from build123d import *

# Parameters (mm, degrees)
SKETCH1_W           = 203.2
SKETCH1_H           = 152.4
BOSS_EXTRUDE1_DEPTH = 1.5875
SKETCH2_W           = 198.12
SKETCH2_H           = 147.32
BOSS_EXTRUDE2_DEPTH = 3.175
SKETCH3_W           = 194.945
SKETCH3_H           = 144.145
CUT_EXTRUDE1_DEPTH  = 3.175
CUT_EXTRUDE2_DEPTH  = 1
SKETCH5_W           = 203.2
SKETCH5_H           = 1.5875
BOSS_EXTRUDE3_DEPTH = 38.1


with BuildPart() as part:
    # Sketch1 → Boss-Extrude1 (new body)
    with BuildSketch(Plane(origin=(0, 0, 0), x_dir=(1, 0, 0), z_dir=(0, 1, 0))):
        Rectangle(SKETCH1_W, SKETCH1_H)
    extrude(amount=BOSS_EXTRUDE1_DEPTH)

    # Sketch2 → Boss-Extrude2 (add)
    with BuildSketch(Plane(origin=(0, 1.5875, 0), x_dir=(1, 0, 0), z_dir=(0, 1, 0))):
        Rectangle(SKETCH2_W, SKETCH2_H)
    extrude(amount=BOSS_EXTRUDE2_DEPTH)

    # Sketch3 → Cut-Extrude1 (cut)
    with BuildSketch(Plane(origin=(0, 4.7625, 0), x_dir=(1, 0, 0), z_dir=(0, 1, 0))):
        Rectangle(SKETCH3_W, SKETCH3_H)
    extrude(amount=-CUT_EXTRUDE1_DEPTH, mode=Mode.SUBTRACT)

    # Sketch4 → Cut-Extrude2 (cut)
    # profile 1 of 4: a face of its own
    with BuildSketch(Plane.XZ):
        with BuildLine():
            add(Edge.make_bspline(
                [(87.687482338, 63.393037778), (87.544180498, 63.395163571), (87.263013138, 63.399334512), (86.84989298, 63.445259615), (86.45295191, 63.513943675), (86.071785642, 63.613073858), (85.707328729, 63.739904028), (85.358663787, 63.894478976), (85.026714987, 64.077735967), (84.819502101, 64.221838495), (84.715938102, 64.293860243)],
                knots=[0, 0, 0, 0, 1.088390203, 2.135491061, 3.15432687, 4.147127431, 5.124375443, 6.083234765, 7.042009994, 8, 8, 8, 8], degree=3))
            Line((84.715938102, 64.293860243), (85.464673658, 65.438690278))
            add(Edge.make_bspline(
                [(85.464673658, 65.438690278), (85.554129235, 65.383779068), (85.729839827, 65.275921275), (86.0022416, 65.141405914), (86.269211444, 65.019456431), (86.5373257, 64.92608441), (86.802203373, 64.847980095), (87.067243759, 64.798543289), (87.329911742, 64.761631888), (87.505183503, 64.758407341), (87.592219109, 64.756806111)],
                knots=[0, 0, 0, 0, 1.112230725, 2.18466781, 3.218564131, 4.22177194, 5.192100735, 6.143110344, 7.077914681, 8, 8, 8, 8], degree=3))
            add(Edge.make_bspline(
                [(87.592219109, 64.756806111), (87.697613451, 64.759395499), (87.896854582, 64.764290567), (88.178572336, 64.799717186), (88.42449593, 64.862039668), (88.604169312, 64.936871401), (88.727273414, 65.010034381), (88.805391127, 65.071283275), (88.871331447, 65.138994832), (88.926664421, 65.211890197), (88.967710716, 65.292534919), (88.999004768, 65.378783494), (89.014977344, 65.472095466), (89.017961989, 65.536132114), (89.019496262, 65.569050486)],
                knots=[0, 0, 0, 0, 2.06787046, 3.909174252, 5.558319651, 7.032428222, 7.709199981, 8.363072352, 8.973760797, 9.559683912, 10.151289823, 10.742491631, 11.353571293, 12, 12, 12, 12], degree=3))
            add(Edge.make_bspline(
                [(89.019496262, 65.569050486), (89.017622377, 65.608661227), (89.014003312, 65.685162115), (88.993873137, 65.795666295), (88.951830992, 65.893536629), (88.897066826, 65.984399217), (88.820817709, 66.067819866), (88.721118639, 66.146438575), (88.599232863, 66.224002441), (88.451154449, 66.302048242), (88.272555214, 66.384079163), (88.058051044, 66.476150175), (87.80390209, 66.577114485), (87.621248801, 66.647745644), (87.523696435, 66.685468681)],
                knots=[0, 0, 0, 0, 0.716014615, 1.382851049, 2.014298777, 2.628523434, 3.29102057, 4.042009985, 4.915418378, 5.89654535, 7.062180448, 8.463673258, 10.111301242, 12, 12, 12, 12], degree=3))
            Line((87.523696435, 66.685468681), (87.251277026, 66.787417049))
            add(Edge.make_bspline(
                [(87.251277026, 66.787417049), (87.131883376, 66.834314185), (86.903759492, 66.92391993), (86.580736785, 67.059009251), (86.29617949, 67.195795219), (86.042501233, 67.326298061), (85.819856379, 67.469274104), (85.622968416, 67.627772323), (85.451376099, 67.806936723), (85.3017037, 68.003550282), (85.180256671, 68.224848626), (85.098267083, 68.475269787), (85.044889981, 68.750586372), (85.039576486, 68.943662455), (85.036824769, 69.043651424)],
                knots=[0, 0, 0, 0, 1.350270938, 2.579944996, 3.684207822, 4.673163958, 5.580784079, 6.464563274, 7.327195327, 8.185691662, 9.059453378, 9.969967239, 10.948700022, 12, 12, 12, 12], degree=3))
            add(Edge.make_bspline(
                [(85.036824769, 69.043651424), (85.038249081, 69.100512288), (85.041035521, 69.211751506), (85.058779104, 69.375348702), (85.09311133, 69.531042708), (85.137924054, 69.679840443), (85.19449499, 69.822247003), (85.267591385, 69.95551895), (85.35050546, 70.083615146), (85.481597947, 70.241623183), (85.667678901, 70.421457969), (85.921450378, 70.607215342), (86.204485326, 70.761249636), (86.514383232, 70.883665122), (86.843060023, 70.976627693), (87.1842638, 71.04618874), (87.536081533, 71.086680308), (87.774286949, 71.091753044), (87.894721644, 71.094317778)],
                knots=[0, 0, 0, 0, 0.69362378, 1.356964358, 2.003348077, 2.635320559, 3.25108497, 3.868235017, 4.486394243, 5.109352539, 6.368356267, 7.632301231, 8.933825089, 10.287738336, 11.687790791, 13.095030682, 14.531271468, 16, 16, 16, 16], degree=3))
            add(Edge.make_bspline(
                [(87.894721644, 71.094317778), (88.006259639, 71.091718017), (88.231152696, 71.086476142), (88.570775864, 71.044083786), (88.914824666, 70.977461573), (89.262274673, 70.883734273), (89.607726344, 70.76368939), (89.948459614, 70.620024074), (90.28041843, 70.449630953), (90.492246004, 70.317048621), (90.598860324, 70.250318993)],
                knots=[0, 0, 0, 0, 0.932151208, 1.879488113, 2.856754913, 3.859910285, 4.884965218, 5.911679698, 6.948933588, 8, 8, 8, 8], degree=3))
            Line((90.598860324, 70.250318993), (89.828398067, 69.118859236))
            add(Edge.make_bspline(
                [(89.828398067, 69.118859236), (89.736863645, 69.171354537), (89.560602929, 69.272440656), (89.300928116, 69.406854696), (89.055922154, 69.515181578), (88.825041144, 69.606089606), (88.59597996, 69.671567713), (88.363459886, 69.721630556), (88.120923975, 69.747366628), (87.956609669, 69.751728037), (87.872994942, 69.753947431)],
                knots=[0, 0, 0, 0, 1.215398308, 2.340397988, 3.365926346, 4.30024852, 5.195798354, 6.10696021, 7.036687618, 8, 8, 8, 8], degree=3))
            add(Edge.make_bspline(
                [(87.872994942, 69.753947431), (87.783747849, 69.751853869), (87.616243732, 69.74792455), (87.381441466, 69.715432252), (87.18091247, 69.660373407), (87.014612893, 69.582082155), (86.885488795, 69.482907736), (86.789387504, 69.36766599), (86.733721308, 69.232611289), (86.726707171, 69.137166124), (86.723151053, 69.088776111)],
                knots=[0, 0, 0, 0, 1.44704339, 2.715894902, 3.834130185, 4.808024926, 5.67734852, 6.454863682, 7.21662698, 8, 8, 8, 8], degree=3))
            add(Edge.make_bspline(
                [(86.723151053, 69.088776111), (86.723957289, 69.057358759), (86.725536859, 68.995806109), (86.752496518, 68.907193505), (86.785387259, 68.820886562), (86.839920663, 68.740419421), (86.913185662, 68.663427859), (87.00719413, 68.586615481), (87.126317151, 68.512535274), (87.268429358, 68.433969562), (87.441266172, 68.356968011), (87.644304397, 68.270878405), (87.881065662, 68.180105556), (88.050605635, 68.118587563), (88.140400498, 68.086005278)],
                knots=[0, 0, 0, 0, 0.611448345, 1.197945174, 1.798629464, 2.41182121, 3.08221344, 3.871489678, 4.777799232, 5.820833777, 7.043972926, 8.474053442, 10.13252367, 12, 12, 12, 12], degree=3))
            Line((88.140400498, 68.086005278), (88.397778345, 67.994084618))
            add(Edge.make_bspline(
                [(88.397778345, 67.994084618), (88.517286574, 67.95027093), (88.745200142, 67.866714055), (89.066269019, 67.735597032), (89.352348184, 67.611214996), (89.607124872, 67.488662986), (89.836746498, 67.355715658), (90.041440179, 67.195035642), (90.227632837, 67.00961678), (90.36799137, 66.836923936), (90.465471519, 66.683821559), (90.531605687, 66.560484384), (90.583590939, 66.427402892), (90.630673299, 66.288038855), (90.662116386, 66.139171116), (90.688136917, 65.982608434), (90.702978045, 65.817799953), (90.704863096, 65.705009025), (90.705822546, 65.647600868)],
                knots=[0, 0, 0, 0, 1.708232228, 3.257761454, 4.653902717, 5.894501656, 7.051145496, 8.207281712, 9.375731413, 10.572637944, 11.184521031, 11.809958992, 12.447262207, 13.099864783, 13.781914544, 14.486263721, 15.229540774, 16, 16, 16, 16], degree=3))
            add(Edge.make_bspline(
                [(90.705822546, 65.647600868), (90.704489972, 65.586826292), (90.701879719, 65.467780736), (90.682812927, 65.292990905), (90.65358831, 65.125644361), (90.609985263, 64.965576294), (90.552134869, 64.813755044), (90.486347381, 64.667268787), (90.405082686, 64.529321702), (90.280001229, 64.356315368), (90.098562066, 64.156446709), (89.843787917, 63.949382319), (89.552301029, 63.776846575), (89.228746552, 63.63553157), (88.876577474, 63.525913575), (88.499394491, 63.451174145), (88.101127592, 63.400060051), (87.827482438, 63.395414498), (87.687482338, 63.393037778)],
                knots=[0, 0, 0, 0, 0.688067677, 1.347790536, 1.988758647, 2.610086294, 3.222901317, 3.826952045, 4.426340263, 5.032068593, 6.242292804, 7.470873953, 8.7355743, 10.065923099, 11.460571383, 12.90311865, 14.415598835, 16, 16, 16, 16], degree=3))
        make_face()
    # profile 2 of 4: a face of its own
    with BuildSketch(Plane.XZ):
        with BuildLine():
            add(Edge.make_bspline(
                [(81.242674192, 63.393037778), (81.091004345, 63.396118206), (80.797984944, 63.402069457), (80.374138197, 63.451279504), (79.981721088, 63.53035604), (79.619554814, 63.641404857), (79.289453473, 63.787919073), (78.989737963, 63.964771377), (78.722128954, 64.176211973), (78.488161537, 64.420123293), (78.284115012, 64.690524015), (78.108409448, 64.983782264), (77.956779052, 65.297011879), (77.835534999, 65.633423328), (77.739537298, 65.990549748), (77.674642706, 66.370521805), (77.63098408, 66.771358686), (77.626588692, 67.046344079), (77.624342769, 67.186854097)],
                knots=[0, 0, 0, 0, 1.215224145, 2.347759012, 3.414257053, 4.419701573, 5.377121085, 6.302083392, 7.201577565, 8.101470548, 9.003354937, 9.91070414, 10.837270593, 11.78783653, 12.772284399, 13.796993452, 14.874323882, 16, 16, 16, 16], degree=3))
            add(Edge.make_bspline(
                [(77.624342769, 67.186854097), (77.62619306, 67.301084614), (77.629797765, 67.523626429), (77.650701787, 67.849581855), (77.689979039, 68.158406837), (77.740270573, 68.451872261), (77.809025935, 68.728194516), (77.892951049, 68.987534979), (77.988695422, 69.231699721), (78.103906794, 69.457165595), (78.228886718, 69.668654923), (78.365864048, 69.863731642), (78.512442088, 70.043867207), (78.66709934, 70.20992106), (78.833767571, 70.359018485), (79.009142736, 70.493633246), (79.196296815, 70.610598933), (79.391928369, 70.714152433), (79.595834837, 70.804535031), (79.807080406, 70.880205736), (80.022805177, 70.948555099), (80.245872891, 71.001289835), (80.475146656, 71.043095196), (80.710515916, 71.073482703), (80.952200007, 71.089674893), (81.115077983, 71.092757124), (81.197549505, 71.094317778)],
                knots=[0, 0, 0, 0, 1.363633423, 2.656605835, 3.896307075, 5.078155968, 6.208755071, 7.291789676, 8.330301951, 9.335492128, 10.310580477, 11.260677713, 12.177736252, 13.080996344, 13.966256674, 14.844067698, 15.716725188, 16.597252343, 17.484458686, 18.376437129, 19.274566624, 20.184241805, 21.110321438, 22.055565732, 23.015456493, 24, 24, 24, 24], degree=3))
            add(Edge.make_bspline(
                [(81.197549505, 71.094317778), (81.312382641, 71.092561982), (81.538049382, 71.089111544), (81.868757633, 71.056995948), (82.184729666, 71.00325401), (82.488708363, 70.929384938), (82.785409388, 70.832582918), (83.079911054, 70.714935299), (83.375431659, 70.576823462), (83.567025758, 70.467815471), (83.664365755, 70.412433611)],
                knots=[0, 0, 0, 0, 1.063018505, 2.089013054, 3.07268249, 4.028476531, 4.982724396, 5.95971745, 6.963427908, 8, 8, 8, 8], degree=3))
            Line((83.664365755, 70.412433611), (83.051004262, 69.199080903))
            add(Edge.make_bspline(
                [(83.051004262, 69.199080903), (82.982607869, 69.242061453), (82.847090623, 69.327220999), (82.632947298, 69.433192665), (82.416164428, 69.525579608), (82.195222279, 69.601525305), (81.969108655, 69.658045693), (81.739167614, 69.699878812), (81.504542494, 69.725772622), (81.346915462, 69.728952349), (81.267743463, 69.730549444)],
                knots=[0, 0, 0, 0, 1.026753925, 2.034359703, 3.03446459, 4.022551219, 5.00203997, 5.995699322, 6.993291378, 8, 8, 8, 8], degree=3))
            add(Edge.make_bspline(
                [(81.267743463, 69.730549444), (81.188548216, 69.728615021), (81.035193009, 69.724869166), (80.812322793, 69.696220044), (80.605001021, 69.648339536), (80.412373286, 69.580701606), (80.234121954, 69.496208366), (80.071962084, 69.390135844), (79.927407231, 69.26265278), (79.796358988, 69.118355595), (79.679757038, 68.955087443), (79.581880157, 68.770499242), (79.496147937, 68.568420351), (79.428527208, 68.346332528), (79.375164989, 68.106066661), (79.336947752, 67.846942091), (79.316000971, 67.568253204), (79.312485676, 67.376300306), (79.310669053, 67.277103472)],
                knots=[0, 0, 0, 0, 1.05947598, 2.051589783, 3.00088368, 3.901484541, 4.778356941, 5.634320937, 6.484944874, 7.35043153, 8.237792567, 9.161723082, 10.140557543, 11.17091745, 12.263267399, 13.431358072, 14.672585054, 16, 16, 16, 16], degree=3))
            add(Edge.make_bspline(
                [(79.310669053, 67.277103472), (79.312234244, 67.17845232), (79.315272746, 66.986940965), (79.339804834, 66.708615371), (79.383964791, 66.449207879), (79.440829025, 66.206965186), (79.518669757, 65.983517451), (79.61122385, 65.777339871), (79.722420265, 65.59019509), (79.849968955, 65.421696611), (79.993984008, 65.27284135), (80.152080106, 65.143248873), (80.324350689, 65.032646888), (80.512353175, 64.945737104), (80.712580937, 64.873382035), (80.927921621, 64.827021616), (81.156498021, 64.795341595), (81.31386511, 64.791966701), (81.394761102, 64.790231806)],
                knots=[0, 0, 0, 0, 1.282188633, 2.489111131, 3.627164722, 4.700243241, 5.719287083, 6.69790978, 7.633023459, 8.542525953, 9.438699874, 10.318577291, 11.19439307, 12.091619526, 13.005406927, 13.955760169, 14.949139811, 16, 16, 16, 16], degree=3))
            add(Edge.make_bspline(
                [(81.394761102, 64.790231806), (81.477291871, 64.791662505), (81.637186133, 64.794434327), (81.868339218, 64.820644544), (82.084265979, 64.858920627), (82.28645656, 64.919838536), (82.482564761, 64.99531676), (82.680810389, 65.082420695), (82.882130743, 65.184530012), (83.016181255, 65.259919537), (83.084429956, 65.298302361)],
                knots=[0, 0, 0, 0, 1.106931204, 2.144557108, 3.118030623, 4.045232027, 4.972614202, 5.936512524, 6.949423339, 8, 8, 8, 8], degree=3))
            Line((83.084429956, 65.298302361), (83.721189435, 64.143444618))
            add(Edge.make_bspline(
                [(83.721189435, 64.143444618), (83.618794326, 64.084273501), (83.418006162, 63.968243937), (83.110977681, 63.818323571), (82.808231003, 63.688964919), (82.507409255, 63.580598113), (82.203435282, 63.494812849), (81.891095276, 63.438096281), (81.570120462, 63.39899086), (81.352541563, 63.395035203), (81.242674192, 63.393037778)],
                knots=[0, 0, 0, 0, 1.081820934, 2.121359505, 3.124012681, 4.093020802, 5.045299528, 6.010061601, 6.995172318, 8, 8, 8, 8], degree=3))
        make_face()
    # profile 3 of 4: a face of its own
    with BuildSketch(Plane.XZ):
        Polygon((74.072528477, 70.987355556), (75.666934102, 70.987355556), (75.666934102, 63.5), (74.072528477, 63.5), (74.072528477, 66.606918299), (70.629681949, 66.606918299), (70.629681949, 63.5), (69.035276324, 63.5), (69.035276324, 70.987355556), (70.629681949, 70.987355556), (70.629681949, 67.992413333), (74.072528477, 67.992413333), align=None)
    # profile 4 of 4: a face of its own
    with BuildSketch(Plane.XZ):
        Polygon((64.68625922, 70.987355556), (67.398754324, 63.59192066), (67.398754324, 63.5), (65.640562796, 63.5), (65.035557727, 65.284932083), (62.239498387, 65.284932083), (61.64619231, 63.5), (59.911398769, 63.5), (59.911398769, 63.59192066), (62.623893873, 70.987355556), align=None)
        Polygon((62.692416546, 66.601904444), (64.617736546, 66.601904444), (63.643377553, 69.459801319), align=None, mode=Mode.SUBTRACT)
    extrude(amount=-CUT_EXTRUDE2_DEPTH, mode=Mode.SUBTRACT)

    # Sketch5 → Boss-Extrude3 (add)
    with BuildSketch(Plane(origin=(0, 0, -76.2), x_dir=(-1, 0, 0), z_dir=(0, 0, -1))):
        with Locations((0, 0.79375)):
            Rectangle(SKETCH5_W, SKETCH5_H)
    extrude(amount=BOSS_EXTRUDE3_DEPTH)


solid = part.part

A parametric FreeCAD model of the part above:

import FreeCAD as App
import Part
import Sketcher
Q = App.Units.Quantity

doc = App.newDocument("Part")
params = doc.addObject("Spreadsheet::Sheet", "Params")
for row, (alias, value) in enumerate([
    ("sketch1_width", "8 in"),
    ("sketch1_height", "6 in"),
    ("pad1_length", "0.0625 in"),
    ("sketch2_width", "7.8 in"),
    ("sketch2_height", "5.8 in"),
    ("pad2_length", "0.125 in"),
    ("sketch3_width", "7.675 in"),
    ("sketch3_height", "5.675 in"),
    ("pocket1_length", "0.125 in"),
    ("pocket2_length", "1 mm"),
    ("sketch5_width", "8 in"),
    ("sketch5_height", "0.0625 in"),
    ("pad3_length", "1.5 in"),
], start=1):
    params.set(f"A{row}", alias)
    params.set(f"B{row}", "=" + value)
    params.setAlias(f"B{row}", alias)

body = doc.addObject("PartDesign::Body", "Body")

# Sketch on XZ plane
sketch1 = body.newObject("Sketcher::SketchObject", "Sketch")
sketch1.AttachmentSupport = (doc.getObject("XZ_Plane"), [""])
sketch1.MapMode = "FlatFace"
sketch1.addGeometry(Part.LineSegment(App.Vector(-102, -76, 0), App.Vector(-102, 76, 0)), False)
sketch1.addGeometry(Part.LineSegment(App.Vector(-102, 76, 0), App.Vector(102, 76, 0)), False)
sketch1.addGeometry(Part.LineSegment(App.Vector(102, 76, 0), App.Vector(102, -76, 0)), False)
sketch1.addGeometry(Part.LineSegment(App.Vector(102, -76, 0), App.Vector(-102, -76, 0)), False)
sketch1.addConstraint(Sketcher.Constraint("Coincident", 0, 2, 1, 1))
sketch1.addConstraint(Sketcher.Constraint("Coincident", 1, 2, 2, 1))
sketch1.addConstraint(Sketcher.Constraint("Coincident", 2, 2, 3, 1))
sketch1.addConstraint(Sketcher.Constraint("Coincident", 3, 2, 0, 1))
sketch1.addConstraint(Sketcher.Constraint("Vertical", 0))
sketch1.addConstraint(Sketcher.Constraint("Horizontal", 1))
sketch1.addConstraint(Sketcher.Constraint("Vertical", 2))
sketch1.addConstraint(Sketcher.Constraint("Horizontal", 3))
sketch1.addConstraint(Sketcher.Constraint("Symmetric", 0, 2, 2, 2, -1, 1))
sketch1.addConstraint(Sketcher.Constraint("DistanceX", 1, 1, 1, 2, Q("8 in")))
sketch1.addConstraint(Sketcher.Constraint("DistanceY", 0, 1, 0, 2, Q("6 in")))
sketch1.setExpression("Constraints[9]", "Params.sketch1_width")
sketch1.setExpression("Constraints[10]", "Params.sketch1_height")
pad1 = body.newObject("PartDesign::Pad", "Pad")
pad1.Profile = sketch1
pad1.setExpression("Length", "Params.pad1_length")
pad1.Reversed = True

# Sketch on XZ plane
sketch2 = body.newObject("Sketcher::SketchObject", "Sketch001")
sketch2.AttachmentSupport = (doc.getObject("XZ_Plane"), [""])
sketch2.MapMode = "FlatFace"
sketch2.AttachmentOffset = App.Placement(App.Vector(0, 0, -0.0625 * 25.4), App.Rotation())
sketch2.addGeometry(Part.LineSegment(App.Vector(-99, -74, 0), App.Vector(-99, 74, 0)), False)
sketch2.addGeometry(Part.LineSegment(App.Vector(-99, 74, 0), App.Vector(99, 74, 0)), False)
sketch2.addGeometry(Part.LineSegment(App.Vector(99, 74, 0), App.Vector(99, -74, 0)), False)
sketch2.addGeometry(Part.LineSegment(App.Vector(99, -74, 0), App.Vector(-99, -74, 0)), False)
sketch2.addConstraint(Sketcher.Constraint("Coincident", 0, 2, 1, 1))
sketch2.addConstraint(Sketcher.Constraint("Coincident", 1, 2, 2, 1))
sketch2.addConstraint(Sketcher.Constraint("Coincident", 2, 2, 3, 1))
sketch2.addConstraint(Sketcher.Constraint("Coincident", 3, 2, 0, 1))
sketch2.addConstraint(Sketcher.Constraint("Vertical", 0))
sketch2.addConstraint(Sketcher.Constraint("Horizontal", 1))
sketch2.addConstraint(Sketcher.Constraint("Vertical", 2))
sketch2.addConstraint(Sketcher.Constraint("Horizontal", 3))
sketch2.addConstraint(Sketcher.Constraint("Symmetric", 0, 2, 2, 2, -1, 1))
sketch2.addConstraint(Sketcher.Constraint("DistanceX", 1, 1, 1, 2, Q("7.8 in")))
sketch2.addConstraint(Sketcher.Constraint("DistanceY", 0, 1, 0, 2, Q("5.8 in")))
sketch2.setExpression("Constraints[9]", "Params.sketch2_width")
sketch2.setExpression("Constraints[10]", "Params.sketch2_height")
pad2 = body.newObject("PartDesign::Pad", "Pad001")
pad2.Profile = sketch2
pad2.setExpression("Length", "Params.pad2_length")
pad2.Reversed = True

# Sketch on XZ plane
sketch3 = body.newObject("Sketcher::SketchObject", "Sketch002")
sketch3.AttachmentSupport = (doc.getObject("XZ_Plane"), [""])
sketch3.MapMode = "FlatFace"
sketch3.AttachmentOffset = App.Placement(App.Vector(0, 0, -0.1875 * 25.4), App.Rotation())
sketch3.addGeometry(Part.LineSegment(App.Vector(-97, -72, 0), App.Vector(-97, 72, 0)), False)
sketch3.addGeometry(Part.LineSegment(App.Vector(-97, 72, 0), App.Vector(97, 72, 0)), False)
sketch3.addGeometry(Part.LineSegment(App.Vector(97, 72, 0), App.Vector(97, -72, 0)), False)
sketch3.addGeometry(Part.LineSegment(App.Vector(97, -72, 0), App.Vector(-97, -72, 0)), False)
sketch3.addConstraint(Sketcher.Constraint("Coincident", 0, 2, 1, 1))
sketch3.addConstraint(Sketcher.Constraint("Coincident", 1, 2, 2, 1))
sketch3.addConstraint(Sketcher.Constraint("Coincident", 2, 2, 3, 1))
sketch3.addConstraint(Sketcher.Constraint("Coincident", 3, 2, 0, 1))
sketch3.addConstraint(Sketcher.Constraint("Vertical", 0))
sketch3.addConstraint(Sketcher.Constraint("Horizontal", 1))
sketch3.addConstraint(Sketcher.Constraint("Vertical", 2))
sketch3.addConstraint(Sketcher.Constraint("Horizontal", 3))
sketch3.addConstraint(Sketcher.Constraint("Symmetric", 0, 2, 2, 2, -1, 1))
sketch3.addConstraint(Sketcher.Constraint("DistanceX", 1, 1, 1, 2, Q("7.675 in")))
sketch3.addConstraint(Sketcher.Constraint("DistanceY", 0, 1, 0, 2, Q("5.675 in")))
sketch3.setExpression("Constraints[9]", "Params.sketch3_width")
sketch3.setExpression("Constraints[10]", "Params.sketch3_height")
pocket1 = body.newObject("PartDesign::Pocket", "Pocket")
pocket1.Profile = sketch3
pocket1.setExpression("Length", "Params.pocket1_length")
pocket1.Reversed = True

# Sketch on XZ plane
sketch4 = body.newObject("Sketcher::SketchObject", "Sketch003")
sketch4.AttachmentSupport = (doc.getObject("XZ_Plane"), [""])
sketch4.MapMode = "FlatFace"
sketch4.addGeometry(Part.BSplineCurve([App.Vector(87.687482, 63.393038, 0), App.Vector(87.54418, 63.395164, 0), App.Vector(87.263013, 63.399335, 0), App.Vector(86.849893, 63.44526, 0), App.Vector(86.452952, 63.513944, 0), App.Vector(86.071786, 63.613074, 0), App.Vector(85.707329, 63.739904, 0), App.Vector(85.358664, 63.894479, 0), App.Vector(85.026715, 64.077736, 0), App.Vector(84.819502, 64.221838, 0), App.Vector(84.715938, 64.29386, 0)], [4, 1, 1, 1, 1, 1, 1, 1, 4], [0, 1.088390203, 2.135491061, 3.15432687, 4.147127431, 5.124375443, 6.083234765, 7.042009994, 8], False, 3, [1, 1, 1, 1, 1, 1, 1, 1, 1, 1, 1], False), False)
sketch4.addGeometry(Part.BSplineCurve([App.Vector(90.705823, 65.647601, 0), App.Vector(90.70449, 65.586826, 0), App.Vector(90.70188, 65.467781, 0), App.Vector(90.682813, 65.292991, 0), App.Vector(90.653588, 65.125644, 0), App.Vector(90.609985, 64.965576, 0), App.Vector(90.552135, 64.813755, 0), App.Vector(90.486347, 64.667269, 0), App.Vector(90.405083, 64.529322, 0), App.Vector(90.280001, 64.356315, 0), App.Vector(90.098562, 64.156447, 0), App.Vector(89.843788, 63.949382, 0), App.Vector(89.552301, 63.776847, 0), App.Vector(89.228747, 63.635532, 0), App.Vector(88.876577, 63.525914, 0), App.Vector(88.499394, 63.451174, 0), App.Vector(88.101128, 63.40006, 0), App.Vector(87.827482, 63.395414, 0), App.Vector(87.687482, 63.393038, 0)], [4, 1, 1, 1, 1, 1, 1, 1, 1, 1, 1, 1, 1, 1, 1, 1, 4], [0, 0.688067677, 1.347790536, 1.988758647, 2.610086294, 3.222901317, 3.826952045, 4.426340263, 5.032068593, 6.242292804, 7.470873953, 8.7355743, 10.065923099, 11.460571383, 12.90311865, 14.415598835, 16], False, 3, [1, 1, 1, 1, 1, 1, 1, 1, 1, 1, 1, 1, 1, 1, 1, 1, 1, 1, 1], False), False)
sketch4.addGeometry(Part.BSplineCurve([App.Vector(88.397778, 67.994085, 0), App.Vector(88.517287, 67.950271, 0), App.Vector(88.7452, 67.866714, 0), App.Vector(89.066269, 67.735597, 0), App.Vector(89.352348, 67.611215, 0), App.Vector(89.607125, 67.488663, 0), App.Vector(89.836746, 67.355716, 0), App.Vector(90.04144, 67.195036, 0), App.Vector(90.227633, 67.009617, 0), App.Vector(90.367991, 66.836924, 0), App.Vector(90.465472, 66.683822, 0), App.Vector(90.531606, 66.560484, 0), App.Vector(90.583591, 66.427403, 0), App.Vector(90.630673, 66.288039, 0), App.Vector(90.662116, 66.139171, 0), App.Vector(90.688137, 65.982608, 0), App.Vector(90.702978, 65.8178, 0), App.Vector(90.704863, 65.705009, 0), App.Vector(90.705823, 65.647601, 0)], [4, 1, 1, 1, 1, 1, 1, 1, 1, 1, 1, 1, 1, 1, 1, 1, 4], [0, 1.708232228, 3.257761454, 4.653902717, 5.894501656, 7.051145496, 8.207281712, 9.375731413, 10.572637944, 11.184521031, 11.809958992, 12.447262207, 13.099864783, 13.781914544, 14.486263721, 15.229540774, 16], False, 3, [1, 1, 1, 1, 1, 1, 1, 1, 1, 1, 1, 1, 1, 1, 1, 1, 1, 1, 1], False), False)
sketch4.addGeometry(Part.LineSegment(App.Vector(88.397778, 67.994085, 0), App.Vector(88.1404, 68.086005, 0)), False)
sketch4.addGeometry(Part.BSplineCurve([App.Vector(86.723151, 69.088776, 0), App.Vector(86.723957, 69.057359, 0), App.Vector(86.725537, 68.995806, 0), App.Vector(86.752497, 68.907194, 0), App.Vector(86.785387, 68.820887, 0), App.Vector(86.839921, 68.740419, 0), App.Vector(86.913186, 68.663428, 0), App.Vector(87.007194, 68.586615, 0), App.Vector(87.126317, 68.512535, 0), App.Vector(87.268429, 68.43397, 0), App.Vector(87.441266, 68.356968, 0), App.Vector(87.644304, 68.270878, 0), App.Vector(87.881066, 68.180106, 0), App.Vector(88.050606, 68.118588, 0), App.Vector(88.1404, 68.086005, 0)], [4, 1, 1, 1, 1, 1, 1, 1, 1, 1, 1, 1, 4], [0, 0.611448345, 1.197945174, 1.798629464, 2.41182121, 3.08221344, 3.871489678, 4.777799232, 5.820833777, 7.043972926, 8.474053442, 10.13252367, 12], False, 3, [1, 1, 1, 1, 1, 1, 1, 1, 1, 1, 1, 1, 1, 1, 1], False), False)
sketch4.addGeometry(Part.BSplineCurve([App.Vector(87.872995, 69.753947, 0), App.Vector(87.783748, 69.751854, 0), App.Vector(87.616244, 69.747925, 0), App.Vector(87.381441, 69.715432, 0), App.Vector(87.180912, 69.660373, 0), App.Vector(87.014613, 69.582082, 0), App.Vector(86.885489, 69.482908, 0), App.Vector(86.789388, 69.367666, 0), App.Vector(86.733721, 69.232611, 0), App.Vector(86.726707, 69.137166, 0), App.Vector(86.723151, 69.088776, 0)], [4, 1, 1, 1, 1, 1, 1, 1, 4], [0, 1.44704339, 2.715894902, 3.834130185, 4.808024926, 5.67734852, 6.454863682, 7.21662698, 8], False, 3, [1, 1, 1, 1, 1, 1, 1, 1, 1, 1, 1], False), False)
sketch4.addGeometry(Part.BSplineCurve([App.Vector(89.828398, 69.118859, 0), App.Vector(89.736864, 69.171355, 0), App.Vector(89.560603, 69.272441, 0), App.Vector(89.300928, 69.406855, 0), App.Vector(89.055922, 69.515182, 0), App.Vector(88.825041, 69.60609, 0), App.Vector(88.59598, 69.671568, 0), App.Vector(88.36346, 69.721631, 0), App.Vector(88.120924, 69.747367, 0), App.Vector(87.95661, 69.751728, 0), App.Vector(87.872995, 69.753947, 0)], [4, 1, 1, 1, 1, 1, 1, 1, 4], [0, 1.215398308, 2.340397988, 3.365926346, 4.30024852, 5.195798354, 6.10696021, 7.036687618, 8], False, 3, [1, 1, 1, 1, 1, 1, 1, 1, 1, 1, 1], False), False)
sketch4.addGeometry(Part.LineSegment(App.Vector(89.828398, 69.118859, 0), App.Vector(90.59886, 70.250319, 0)), False)
sketch4.addGeometry(Part.BSplineCurve([App.Vector(87.894722, 71.094318, 0), App.Vector(88.00626, 71.091718, 0), App.Vector(88.231153, 71.086476, 0), App.Vector(88.570776, 71.044084, 0), App.Vector(88.914825, 70.977462, 0), App.Vector(89.262275, 70.883734, 0), App.Vector(89.607726, 70.763689, 0), App.Vector(89.94846, 70.620024, 0), App.Vector(90.280418, 70.449631, 0), App.Vector(90.492246, 70.317049, 0), App.Vector(90.59886, 70.250319, 0)], [4, 1, 1, 1, 1, 1, 1, 1, 4], [0, 0.932151208, 1.879488113, 2.856754913, 3.859910285, 4.884965218, 5.911679698, 6.948933588, 8], False, 3, [1, 1, 1, 1, 1, 1, 1, 1, 1, 1, 1], False), False)
sketch4.addGeometry(Part.BSplineCurve([App.Vector(85.036825, 69.043651, 0), App.Vector(85.038249, 69.100512, 0), App.Vector(85.041036, 69.211752, 0), App.Vector(85.058779, 69.375349, 0), App.Vector(85.093111, 69.531043, 0), App.Vector(85.137924, 69.67984, 0), App.Vector(85.194495, 69.822247, 0), App.Vector(85.267591, 69.955519, 0), App.Vector(85.350505, 70.083615, 0), App.Vector(85.481598, 70.241623, 0), App.Vector(85.667679, 70.421458, 0), App.Vector(85.92145, 70.607215, 0), App.Vector(86.204485, 70.76125, 0), App.Vector(86.514383, 70.883665, 0), App.Vector(86.84306, 70.976628, 0), App.Vector(87.184264, 71.046189, 0), App.Vector(87.536082, 71.08668, 0), App.Vector(87.774287, 71.091753, 0), App.Vector(87.894722, 71.094318, 0)], [4, 1, 1, 1, 1, 1, 1, 1, 1, 1, 1, 1, 1, 1, 1, 1, 4], [0, 0.69362378, 1.356964358, 2.003348077, 2.635320559, 3.25108497, 3.868235017, 4.486394243, 5.109352539, 6.368356267, 7.632301231, 8.933825089, 10.287738336, 11.687790791, 13.095030682, 14.531271468, 16], False, 3, [1, 1, 1, 1, 1, 1, 1, 1, 1, 1, 1, 1, 1, 1, 1, 1, 1, 1, 1], False), False)
sketch4.addGeometry(Part.BSplineCurve([App.Vector(87.251277, 66.787417, 0), App.Vector(87.131883, 66.834314, 0), App.Vector(86.903759, 66.92392, 0), App.Vector(86.580737, 67.059009, 0), App.Vector(86.296179, 67.195795, 0), App.Vector(86.042501, 67.326298, 0), App.Vector(85.819856, 67.469274, 0), App.Vector(85.622968, 67.627772, 0), App.Vector(85.451376, 67.806937, 0), App.Vector(85.301704, 68.00355, 0), App.Vector(85.180257, 68.224849, 0), App.Vector(85.098267, 68.47527, 0), App.Vector(85.04489, 68.750586, 0), App.Vector(85.039576, 68.943662, 0), App.Vector(85.036825, 69.043651, 0)], [4, 1, 1, 1, 1, 1, 1, 1, 1, 1, 1, 1, 4], [0, 1.350270938, 2.579944996, 3.684207822, 4.673163958, 5.580784079, 6.464563274, 7.327195327, 8.185691662, 9.059453378, 9.969967239, 10.948700022, 12], False, 3, [1, 1, 1, 1, 1, 1, 1, 1, 1, 1, 1, 1, 1, 1, 1], False), False)
sketch4.addGeometry(Part.LineSegment(App.Vector(87.251277, 66.787417, 0), App.Vector(87.523696, 66.685469, 0)), False)
sketch4.addGeometry(Part.BSplineCurve([App.Vector(89.019496, 65.56905, 0), App.Vector(89.017622, 65.608661, 0), App.Vector(89.014003, 65.685162, 0), App.Vector(88.993873, 65.795666, 0), App.Vector(88.951831, 65.893537, 0), App.Vector(88.897067, 65.984399, 0), App.Vector(88.820818, 66.06782, 0), App.Vector(88.721119, 66.146439, 0), App.Vector(88.599233, 66.224002, 0), App.Vector(88.451154, 66.302048, 0), App.Vector(88.272555, 66.384079, 0), App.Vector(88.058051, 66.47615, 0), App.Vector(87.803902, 66.577114, 0), App.Vector(87.621249, 66.647746, 0), App.Vector(87.523696, 66.685469, 0)], [4, 1, 1, 1, 1, 1, 1, 1, 1, 1, 1, 1, 4], [0, 0.716014615, 1.382851049, 2.014298777, 2.628523434, 3.29102057, 4.042009985, 4.915418378, 5.89654535, 7.062180448, 8.463673258, 10.111301242, 12], False, 3, [1, 1, 1, 1, 1, 1, 1, 1, 1, 1, 1, 1, 1, 1, 1], False), False)
sketch4.addGeometry(Part.BSplineCurve([App.Vector(87.592219, 64.756806, 0), App.Vector(87.697613, 64.759395, 0), App.Vector(87.896855, 64.764291, 0), App.Vector(88.178572, 64.799717, 0), App.Vector(88.424496, 64.86204, 0), App.Vector(88.604169, 64.936871, 0), App.Vector(88.727273, 65.010034, 0), App.Vector(88.805391, 65.071283, 0), App.Vector(88.871331, 65.138995, 0), App.Vector(88.926664, 65.21189, 0), App.Vector(88.967711, 65.292535, 0), App.Vector(88.999005, 65.378783, 0), App.Vector(89.014977, 65.472095, 0), App.Vector(89.017962, 65.536132, 0), App.Vector(89.019496, 65.56905, 0)], [4, 1, 1, 1, 1, 1, 1, 1, 1, 1, 1, 1, 4], [0, 2.06787046, 3.909174252, 5.558319651, 7.032428222, 7.709199981, 8.363072352, 8.973760797, 9.559683912, 10.151289823, 10.742491631, 11.353571293, 12], False, 3, [1, 1, 1, 1, 1, 1, 1, 1, 1, 1, 1, 1, 1, 1, 1], False), False)
sketch4.addGeometry(Part.BSplineCurve([App.Vector(85.464674, 65.43869, 0), App.Vector(85.554129, 65.383779, 0), App.Vector(85.72984, 65.275921, 0), App.Vector(86.002242, 65.141406, 0), App.Vector(86.269211, 65.019456, 0), App.Vector(86.537326, 64.926084, 0), App.Vector(86.802203, 64.84798, 0), App.Vector(87.067244, 64.798543, 0), App.Vector(87.329912, 64.761632, 0), App.Vector(87.505184, 64.758407, 0), App.Vector(87.592219, 64.756806, 0)], [4, 1, 1, 1, 1, 1, 1, 1, 4], [0, 1.112230725, 2.18466781, 3.218564131, 4.22177194, 5.192100735, 6.143110344, 7.077914681, 8], False, 3, [1, 1, 1, 1, 1, 1, 1, 1, 1, 1, 1], False), False)
sketch4.addGeometry(Part.LineSegment(App.Vector(85.464674, 65.43869, 0), App.Vector(84.715938, 64.29386, 0)), False)
sketch4.addGeometry(Part.BSplineCurve([App.Vector(81.242674, 63.393038, 0), App.Vector(81.091004, 63.396118, 0), App.Vector(80.797985, 63.402069, 0), App.Vector(80.374138, 63.45128, 0), App.Vector(79.981721, 63.530356, 0), App.Vector(79.619555, 63.641405, 0), App.Vector(79.289453, 63.787919, 0), App.Vector(78.989738, 63.964771, 0), App.Vector(78.722129, 64.176212, 0), App.Vector(78.488162, 64.420123, 0), App.Vector(78.284115, 64.690524, 0), App.Vector(78.108409, 64.983782, 0), App.Vector(77.956779, 65.297012, 0), App.Vector(77.835535, 65.633423, 0), App.Vector(77.739537, 65.99055, 0), App.Vector(77.674643, 66.370522, 0), App.Vector(77.630984, 66.771359, 0), App.Vector(77.626589, 67.046344, 0), App.Vector(77.624343, 67.186854, 0)], [4, 1, 1, 1, 1, 1, 1, 1, 1, 1, 1, 1, 1, 1, 1, 1, 4], [0, 1.215224145, 2.347759012, 3.414257053, 4.419701573, 5.377121085, 6.302083392, 7.201577565, 8.101470548, 9.003354937, 9.91070414, 10.837270593, 11.78783653, 12.772284399, 13.796993452, 14.874323882, 16], False, 3, [1, 1, 1, 1, 1, 1, 1, 1, 1, 1, 1, 1, 1, 1, 1, 1, 1, 1, 1], False), False)
sketch4.addGeometry(Part.BSplineCurve([App.Vector(83.721189, 64.143445, 0), App.Vector(83.618794, 64.084274, 0), App.Vector(83.418006, 63.968244, 0), App.Vector(83.110978, 63.818324, 0), App.Vector(82.808231, 63.688965, 0), App.Vector(82.507409, 63.580598, 0), App.Vector(82.203435, 63.494813, 0), App.Vector(81.891095, 63.438096, 0), App.Vector(81.57012, 63.398991, 0), App.Vector(81.352542, 63.395035, 0), App.Vector(81.242674, 63.393038, 0)], [4, 1, 1, 1, 1, 1, 1, 1, 4], [0, 1.081820934, 2.121359505, 3.124012681, 4.093020802, 5.045299528, 6.010061601, 6.995172318, 8], False, 3, [1, 1, 1, 1, 1, 1, 1, 1, 1, 1, 1], False), False)
sketch4.addGeometry(Part.LineSegment(App.Vector(83.721189, 64.143445, 0), App.Vector(83.08443, 65.298302, 0)), False)
sketch4.addGeometry(Part.BSplineCurve([App.Vector(81.394761, 64.790232, 0), App.Vector(81.477292, 64.791663, 0), App.Vector(81.637186, 64.794434, 0), App.Vector(81.868339, 64.820645, 0), App.Vector(82.084266, 64.858921, 0), App.Vector(82.286457, 64.919839, 0), App.Vector(82.482565, 64.995317, 0), App.Vector(82.68081, 65.082421, 0), App.Vector(82.882131, 65.18453, 0), App.Vector(83.016181, 65.25992, 0), App.Vector(83.08443, 65.298302, 0)], [4, 1, 1, 1, 1, 1, 1, 1, 4], [0, 1.106931204, 2.144557108, 3.118030623, 4.045232027, 4.972614202, 5.936512524, 6.949423339, 8], False, 3, [1, 1, 1, 1, 1, 1, 1, 1, 1, 1, 1], False), False)
sketch4.addGeometry(Part.BSplineCurve([App.Vector(79.310669, 67.277103, 0), App.Vector(79.312234, 67.178452, 0), App.Vector(79.315273, 66.986941, 0), App.Vector(79.339805, 66.708615, 0), App.Vector(79.383965, 66.449208, 0), App.Vector(79.440829, 66.206965, 0), App.Vector(79.51867, 65.983517, 0), App.Vector(79.611224, 65.77734, 0), App.Vector(79.72242, 65.590195, 0), App.Vector(79.849969, 65.421697, 0), App.Vector(79.993984, 65.272841, 0), App.Vector(80.15208, 65.143249, 0), App.Vector(80.324351, 65.032647, 0), App.Vector(80.512353, 64.945737, 0), App.Vector(80.712581, 64.873382, 0), App.Vector(80.927922, 64.827022, 0), App.Vector(81.156498, 64.795342, 0), App.Vector(81.313865, 64.791967, 0), App.Vector(81.394761, 64.790232, 0)], [4, 1, 1, 1, 1, 1, 1, 1, 1, 1, 1, 1, 1, 1, 1, 1, 4], [0, 1.282188633, 2.489111131, 3.627164722, 4.700243241, 5.719287083, 6.69790978, 7.633023459, 8.542525953, 9.438699874, 10.318577291, 11.19439307, 12.091619526, 13.005406927, 13.955760169, 14.949139811, 16], False, 3, [1, 1, 1, 1, 1, 1, 1, 1, 1, 1, 1, 1, 1, 1, 1, 1, 1, 1, 1], False), False)
sketch4.addGeometry(Part.BSplineCurve([App.Vector(81.267743, 69.730549, 0), App.Vector(81.188548, 69.728615, 0), App.Vector(81.035193, 69.724869, 0), App.Vector(80.812323, 69.69622, 0), App.Vector(80.605001, 69.64834, 0), App.Vector(80.412373, 69.580702, 0), App.Vector(80.234122, 69.496208, 0), App.Vector(80.071962, 69.390136, 0), App.Vector(79.927407, 69.262653, 0), App.Vector(79.796359, 69.118356, 0), App.Vector(79.679757, 68.955087, 0), App.Vector(79.58188, 68.770499, 0), App.Vector(79.496148, 68.56842, 0), App.Vector(79.428527, 68.346333, 0), App.Vector(79.375165, 68.106067, 0), App.Vector(79.336948, 67.846942, 0), App.Vector(79.316001, 67.568253, 0), App.Vector(79.312486, 67.3763, 0), App.Vector(79.310669, 67.277103, 0)], [4, 1, 1, 1, 1, 1, 1, 1, 1, 1, 1, 1, 1, 1, 1, 1, 4], [0, 1.05947598, 2.051589783, 3.00088368, 3.901484541, 4.778356941, 5.634320937, 6.484944874, 7.35043153, 8.237792567, 9.161723082, 10.140557543, 11.17091745, 12.263267399, 13.431358072, 14.672585054, 16], False, 3, [1, 1, 1, 1, 1, 1, 1, 1, 1, 1, 1, 1, 1, 1, 1, 1, 1, 1, 1], False), False)
sketch4.addGeometry(Part.BSplineCurve([App.Vector(83.051004, 69.199081, 0), App.Vector(82.982608, 69.242061, 0), App.Vector(82.847091, 69.327221, 0), App.Vector(82.632947, 69.433193, 0), App.Vector(82.416164, 69.52558, 0), App.Vector(82.195222, 69.601525, 0), App.Vector(81.969109, 69.658046, 0), App.Vector(81.739168, 69.699879, 0), App.Vector(81.504542, 69.725773, 0), App.Vector(81.346915, 69.728952, 0), App.Vector(81.267743, 69.730549, 0)], [4, 1, 1, 1, 1, 1, 1, 1, 4], [0, 1.026753925, 2.034359703, 3.03446459, 4.022551219, 5.00203997, 5.995699322, 6.993291378, 8], False, 3, [1, 1, 1, 1, 1, 1, 1, 1, 1, 1, 1], False), False)
sketch4.addGeometry(Part.LineSegment(App.Vector(83.051004, 69.199081, 0), App.Vector(83.664366, 70.412434, 0)), False)
sketch4.addGeometry(Part.BSplineCurve([App.Vector(81.19755, 71.094318, 0), App.Vector(81.312383, 71.092562, 0), App.Vector(81.538049, 71.089112, 0), App.Vector(81.868758, 71.056996, 0), App.Vector(82.18473, 71.003254, 0), App.Vector(82.488708, 70.929385, 0), App.Vector(82.785409, 70.832583, 0), App.Vector(83.079911, 70.714935, 0), App.Vector(83.375432, 70.576823, 0), App.Vector(83.567026, 70.467815, 0), App.Vector(83.664366, 70.412434, 0)], [4, 1, 1, 1, 1, 1, 1, 1, 4], [0, 1.063018505, 2.089013054, 3.07268249, 4.028476531, 4.982724396, 5.95971745, 6.963427908, 8], False, 3, [1, 1, 1, 1, 1, 1, 1, 1, 1, 1, 1], False), False)
sketch4.addGeometry(Part.BSplineCurve([App.Vector(77.624343, 67.186854, 0), App.Vector(77.626193, 67.301085, 0), App.Vector(77.629798, 67.523626, 0), App.Vector(77.650702, 67.849582, 0), App.Vector(77.689979, 68.158407, 0), App.Vector(77.740271, 68.451872, 0), App.Vector(77.809026, 68.728195, 0), App.Vector(77.892951, 68.987535, 0), App.Vector(77.988695, 69.2317, 0), App.Vector(78.103907, 69.457166, 0), App.Vector(78.228887, 69.668655, 0), App.Vector(78.365864, 69.863732, 0), App.Vector(78.512442, 70.043867, 0), App.Vector(78.667099, 70.209921, 0), App.Vector(78.833768, 70.359018, 0), App.Vector(79.009143, 70.493633, 0), App.Vector(79.196297, 70.610599, 0), App.Vector(79.391928, 70.714152, 0), App.Vector(79.595835, 70.804535, 0), App.Vector(79.80708, 70.880206, 0), App.Vector(80.022805, 70.948555, 0), App.Vector(80.245873, 71.00129, 0), App.Vector(80.475147, 71.043095, 0), App.Vector(80.710516, 71.073483, 0), App.Vector(80.9522, 71.089675, 0), App.Vector(81.115078, 71.092757, 0), App.Vector(81.19755, 71.094318, 0)], [4, 1, 1, 1, 1, 1, 1, 1, 1, 1, 1, 1, 1, 1, 1, 1, 1, 1, 1, 1, 1, 1, 1, 1, 4], [0, 1.363633423, 2.656605835, 3.896307075, 5.078155968, 6.208755071, 7.291789676, 8.330301951, 9.335492128, 10.310580477, 11.260677713, 12.177736252, 13.080996344, 13.966256674, 14.844067698, 15.716725188, 16.597252343, 17.484458686, 18.376437129, 19.274566624, 20.184241805, 21.110321438, 22.055565732, 23.015456493, 24], False, 3, [1, 1, 1, 1, 1, 1, 1, 1, 1, 1, 1, 1, 1, 1, 1, 1, 1, 1, 1, 1, 1, 1, 1, 1, 1, 1, 1], False), False)
sketch4.addGeometry(Part.LineSegment(App.Vector(75.666934, 70.987356, 0), App.Vector(74.072528, 70.987356, 0)), False)
sketch4.addGeometry(Part.LineSegment(App.Vector(74.072528, 70.987356, 0), App.Vector(74.072528, 67.992413, 0)), False)
sketch4.addGeometry(Part.LineSegment(App.Vector(74.072528, 67.992413, 0), App.Vector(70.629682, 67.992413, 0)), False)
sketch4.addGeometry(Part.LineSegment(App.Vector(70.629682, 67.992413, 0), App.Vector(70.629682, 70.987356, 0)), False)
sketch4.addGeometry(Part.LineSegment(App.Vector(70.629682, 70.987356, 0), App.Vector(69.035276, 70.987356, 0)), False)
sketch4.addGeometry(Part.LineSegment(App.Vector(69.035276, 70.987356, 0), App.Vector(69.035276, 63.5, 0)), False)
sketch4.addGeometry(Part.LineSegment(App.Vector(69.035276, 63.5, 0), App.Vector(70.629682, 63.5, 0)), False)
sketch4.addGeometry(Part.LineSegment(App.Vector(70.629682, 63.5, 0), App.Vector(70.629682, 66.606918, 0)), False)
sketch4.addGeometry(Part.LineSegment(App.Vector(70.629682, 66.606918, 0), App.Vector(74.072528, 66.606918, 0)), False)
sketch4.addGeometry(Part.LineSegment(App.Vector(74.072528, 66.606918, 0), App.Vector(74.072528, 63.5, 0)), False)
sketch4.addGeometry(Part.LineSegment(App.Vector(74.072528, 63.5, 0), App.Vector(75.666934, 63.5, 0)), False)
sketch4.addGeometry(Part.LineSegment(App.Vector(75.666934, 63.5, 0), App.Vector(75.666934, 70.987356, 0)), False)
sketch4.addGeometry(Part.LineSegment(App.Vector(67.398754, 63.591921, 0), App.Vector(64.686259, 70.987356, 0)), False)
sketch4.addGeometry(Part.LineSegment(App.Vector(64.686259, 70.987356, 0), App.Vector(62.623894, 70.987356, 0)), False)
sketch4.addGeometry(Part.LineSegment(App.Vector(62.623894, 70.987356, 0), App.Vector(59.911399, 63.591921, 0)), False)
sketch4.addGeometry(Part.LineSegment(App.Vector(59.911399, 63.591921, 0), App.Vector(59.911399, 63.5, 0)), False)
sketch4.addGeometry(Part.LineSegment(App.Vector(59.911399, 63.5, 0), App.Vector(61.646192, 63.5, 0)), False)
sketch4.addGeometry(Part.LineSegment(App.Vector(61.646192, 63.5, 0), App.Vector(62.239498, 65.284932, 0)), False)
sketch4.addGeometry(Part.LineSegment(App.Vector(62.239498, 65.284932, 0), App.Vector(65.035558, 65.284932, 0)), False)
sketch4.addGeometry(Part.LineSegment(App.Vector(65.035558, 65.284932, 0), App.Vector(65.640563, 63.5, 0)), False)
sketch4.addGeometry(Part.LineSegment(App.Vector(65.640563, 63.5, 0), App.Vector(67.398754, 63.5, 0)), False)
sketch4.addGeometry(Part.LineSegment(App.Vector(67.398754, 63.5, 0), App.Vector(67.398754, 63.591921, 0)), False)
sketch4.addGeometry(Part.LineSegment(App.Vector(62.692417, 66.601904, 0), App.Vector(63.643378, 69.459801, 0)), False)
sketch4.addGeometry(Part.LineSegment(App.Vector(63.643378, 69.459801, 0), App.Vector(64.617737, 66.601904, 0)), False)
sketch4.addGeometry(Part.LineSegment(App.Vector(64.617737, 66.601904, 0), App.Vector(62.692417, 66.601904, 0)), False)
sketch4.addConstraint(Sketcher.Constraint("Block", 0))
sketch4.addConstraint(Sketcher.Constraint("Block", 1))
sketch4.addConstraint(Sketcher.Constraint("Block", 2))
sketch4.addConstraint(Sketcher.Constraint("Block", 4))
sketch4.addConstraint(Sketcher.Constraint("Block", 5))
sketch4.addConstraint(Sketcher.Constraint("Block", 6))
sketch4.addConstraint(Sketcher.Constraint("Block", 8))
sketch4.addConstraint(Sketcher.Constraint("Block", 9))
sketch4.addConstraint(Sketcher.Constraint("Block", 10))
sketch4.addConstraint(Sketcher.Constraint("Block", 12))
sketch4.addConstraint(Sketcher.Constraint("Block", 13))
sketch4.addConstraint(Sketcher.Constraint("Block", 14))
sketch4.addConstraint(Sketcher.Constraint("Block", 16))
sketch4.addConstraint(Sketcher.Constraint("Block", 17))
sketch4.addConstraint(Sketcher.Constraint("Block", 19))
sketch4.addConstraint(Sketcher.Constraint("Block", 20))
sketch4.addConstraint(Sketcher.Constraint("Block", 21))
sketch4.addConstraint(Sketcher.Constraint("Block", 22))
sketch4.addConstraint(Sketcher.Constraint("Block", 24))
sketch4.addConstraint(Sketcher.Constraint("Block", 25))
sketch4.addConstraint(Sketcher.Constraint("Coincident", 2, 1, 3, 1))
sketch4.addConstraint(Sketcher.Constraint("Coincident", 3, 2, 4, 2))
sketch4.addConstraint(Sketcher.Constraint("Coincident", 6, 1, 7, 1))
sketch4.addConstraint(Sketcher.Constraint("Coincident", 7, 2, 8, 2))
sketch4.addConstraint(Sketcher.Constraint("Coincident", 10, 1, 11, 1))
sketch4.addConstraint(Sketcher.Constraint("Coincident", 11, 2, 12, 2))
sketch4.addConstraint(Sketcher.Constraint("Coincident", 14, 1, 15, 1))
sketch4.addConstraint(Sketcher.Constraint("Coincident", 15, 2, 0, 2))
sketch4.addConstraint(Sketcher.Constraint("Coincident", 17, 1, 18, 1))
sketch4.addConstraint(Sketcher.Constraint("Coincident", 18, 2, 19, 2))
sketch4.addConstraint(Sketcher.Constraint("Coincident", 22, 1, 23, 1))
sketch4.addConstraint(Sketcher.Constraint("Coincident", 23, 2, 24, 2))
sketch4.addConstraint(Sketcher.Constraint("Coincident", 26, 2, 27, 1))
sketch4.addConstraint(Sketcher.Constraint("Coincident", 27, 2, 28, 1))
sketch4.addConstraint(Sketcher.Constraint("Coincident", 28, 2, 29, 1))
sketch4.addConstraint(Sketcher.Constraint("Coincident", 29, 2, 30, 1))
sketch4.addConstraint(Sketcher.Constraint("Coincident", 30, 2, 31, 1))
sketch4.addConstraint(Sketcher.Constraint("Coincident", 31, 2, 32, 1))
sketch4.addConstraint(Sketcher.Constraint("Coincident", 32, 2, 33, 1))
sketch4.addConstraint(Sketcher.Constraint("Coincident", 33, 2, 34, 1))
sketch4.addConstraint(Sketcher.Constraint("Coincident", 34, 2, 35, 1))
sketch4.addConstraint(Sketcher.Constraint("Coincident", 35, 2, 36, 1))
sketch4.addConstraint(Sketcher.Constraint("Coincident", 36, 2, 37, 1))
sketch4.addConstraint(Sketcher.Constraint("Coincident", 37, 2, 26, 1))
sketch4.addConstraint(Sketcher.Constraint("Coincident", 38, 2, 39, 1))
sketch4.addConstraint(Sketcher.Constraint("Coincident", 39, 2, 40, 1))
sketch4.addConstraint(Sketcher.Constraint("Coincident", 40, 2, 41, 1))
sketch4.addConstraint(Sketcher.Constraint("Coincident", 41, 2, 42, 1))
sketch4.addConstraint(Sketcher.Constraint("Coincident", 42, 2, 43, 1))
sketch4.addConstraint(Sketcher.Constraint("Coincident", 43, 2, 44, 1))
sketch4.addConstraint(Sketcher.Constraint("Coincident", 44, 2, 45, 1))
sketch4.addConstraint(Sketcher.Constraint("Coincident", 45, 2, 46, 1))
sketch4.addConstraint(Sketcher.Constraint("Coincident", 46, 2, 47, 1))
sketch4.addConstraint(Sketcher.Constraint("Coincident", 47, 2, 38, 1))
sketch4.addConstraint(Sketcher.Constraint("Coincident", 48, 2, 49, 1))
sketch4.addConstraint(Sketcher.Constraint("Coincident", 49, 2, 50, 1))
sketch4.addConstraint(Sketcher.Constraint("Coincident", 50, 2, 48, 1))
sketch4.addConstraint(Sketcher.Constraint("Horizontal", 26))
sketch4.addConstraint(Sketcher.Constraint("Vertical", 27))
sketch4.addConstraint(Sketcher.Constraint("Horizontal", 28))
sketch4.addConstraint(Sketcher.Constraint("Vertical", 29))
sketch4.addConstraint(Sketcher.Constraint("Horizontal", 30))
sketch4.addConstraint(Sketcher.Constraint("Vertical", 31))
sketch4.addConstraint(Sketcher.Constraint("Horizontal", 32))
sketch4.addConstraint(Sketcher.Constraint("Vertical", 33))
sketch4.addConstraint(Sketcher.Constraint("Horizontal", 34))
sketch4.addConstraint(Sketcher.Constraint("Vertical", 35))
sketch4.addConstraint(Sketcher.Constraint("Horizontal", 36))
sketch4.addConstraint(Sketcher.Constraint("Vertical", 37))
sketch4.addConstraint(Sketcher.Constraint("Horizontal", 39))
sketch4.addConstraint(Sketcher.Constraint("Vertical", 41))
sketch4.addConstraint(Sketcher.Constraint("Horizontal", 42))
sketch4.addConstraint(Sketcher.Constraint("Horizontal", 44))
sketch4.addConstraint(Sketcher.Constraint("Horizontal", 46))
sketch4.addConstraint(Sketcher.Constraint("Vertical", 47))
sketch4.addConstraint(Sketcher.Constraint("Horizontal", 50))
sketch4.addConstraint(Sketcher.Constraint("Horizontal", 26, 2, 29, 2))
sketch4.addConstraint(Sketcher.Constraint("Horizontal", 32, 2, 35, 2))
sketch4.addConstraint(Sketcher.Constraint("Horizontal", 37, 2, 38, 2))
sketch4.addConstraint(Sketcher.Constraint("Horizontal", 36, 2, 41, 2))
sketch4.addConstraint(Sketcher.Constraint("Horizontal", 42, 2, 45, 2))
sketch4.addConstraint(Sketcher.Constraint("Horizontal", 40, 2, 47, 2))
sketch4.addConstraint(Sketcher.Constraint("Vertical", 29, 2, 32, 2))
sketch4.addConstraint(Sketcher.Constraint("Vertical", 27, 2, 34, 2))
sketch4.addConstraint(Sketcher.Constraint("Equal", 26, 30))
sketch4.addConstraint(Sketcher.Constraint("Equal", 38, 40))
sketch4.addConstraint(Sketcher.Constraint("DistanceY", -1, 1, 31, 2, Q("2.5 in")))
sketch4.addConstraint(Sketcher.Constraint("DistanceX", 50, 2, 50, 1, Q("0.0758 in")))
sketch4.addConstraint(Sketcher.Constraint("Distance", 45, Q("0.0741999 in")))
sketch4.addConstraint(Sketcher.Constraint("DistanceX", 43, 2, 45, 2, Q("0.1339002 in")))
sketch4.addConstraint(Sketcher.Constraint("DistanceX", 44, 1, 44, 2, Q("2.796059 mm")))
sketch4.addConstraint(Sketcher.Constraint("DistanceX", 46, 1, 46, 2, Q("1.758192 mm")))
sketch4.addConstraint(Sketcher.Constraint("DistanceY", 33, 1, 33, 2, Q("3.106918 mm")))
sketch4.addConstraint(Sketcher.Constraint("DistanceY", 41, 2, 41, 1, Q("0.091921 mm")))
sketch4.addConstraint(Sketcher.Constraint("DistanceX", -1, 1, 40, 2, Q("59.911399 mm")))
sketch4.addConstraint(Sketcher.Constraint("DistanceX", -1, 1, 43, 2, Q("62.239498 mm")))
sketch4.addConstraint(Sketcher.Constraint("DistanceY", -1, 1, 48, 2, Q("69.459801 mm")))
sketch4.addConstraint(Sketcher.Constraint("DistanceX", 26, 2, 18, 2, Q("9.011901 mm")))
sketch4.addConstraint(Sketcher.Constraint("DistanceX", 42, 2, 39, 2, Q("0.977702 mm")))
sketch4.addConstraint(Sketcher.Constraint("DistanceX", 48, 2, 30, 2, Q("5.391899 mm")))
sketch4.addConstraint(Sketcher.Constraint("Distance", 48, Q("3.01196 mm")))
sketch4.addConstraint(Sketcher.Constraint("Distance", 49, Q("3.019429 mm")))
sketch4.addConstraint(Sketcher.Constraint("DistanceX", 26, 2, 26, 1, Q("1.594406 mm")))
sketch4.addConstraint(Sketcher.Constraint("DistanceX", 28, 2, 28, 1, Q("3.442847 mm")))
sketch4.addConstraint(Sketcher.Constraint("DistanceX", 39, 2, 39, 1, Q("2.062365 mm")))
sketch4.addConstraint(Sketcher.Constraint("DistanceY", 27, 2, 27, 1, Q("2.994942 mm")))
sketch4.addConstraint(Sketcher.Constraint("DistanceY", 31, 2, 31, 1, Q("7.487356 mm")))
pocket2 = body.newObject("PartDesign::Pocket", "Pocket001")
pocket2.Profile = sketch4
pocket2.setExpression("Length", "Params.pocket2_length")

# Sketch on XY plane
sketch5 = body.newObject("Sketcher::SketchObject", "Sketch004")
sketch5.AttachmentSupport = (doc.getObject("XY_Plane"), [""])
sketch5.MapMode = "FlatFace"
sketch5.AttachmentOffset = App.Placement(App.Vector(0, 0, -3 * 25.4), App.Rotation())
sketch5.addGeometry(Part.LineSegment(App.Vector(101.6, 1.6, 0), App.Vector(101.6, 0, 0)), False)
sketch5.addGeometry(Part.LineSegment(App.Vector(101.6, 0, 0), App.Vector(-101.6, 0, 0)), False)
sketch5.addGeometry(Part.LineSegment(App.Vector(-101.6, 0, 0), App.Vector(-101.6, 1.6, 0)), False)
sketch5.addGeometry(Part.LineSegment(App.Vector(-101.6, 1.6, 0), App.Vector(101.6, 1.6, 0)), False)
sketch5.addConstraint(Sketcher.Constraint("Coincident", 0, 2, 1, 1))
sketch5.addConstraint(Sketcher.Constraint("Coincident", 1, 2, 2, 1))
sketch5.addConstraint(Sketcher.Constraint("Coincident", 2, 2, 3, 1))
sketch5.addConstraint(Sketcher.Constraint("Coincident", 3, 2, 0, 1))
sketch5.addConstraint(Sketcher.Constraint("Vertical", 0))
sketch5.addConstraint(Sketcher.Constraint("Horizontal", 1))
sketch5.addConstraint(Sketcher.Constraint("Vertical", 2))
sketch5.addConstraint(Sketcher.Constraint("Horizontal", 3))
sketch5.addConstraint(Sketcher.Constraint("Symmetric", 0, 2, 1, 2, -1, 1))
sketch5.addConstraint(Sketcher.Constraint("DistanceX", 1, 2, 1, 1, Q("8 in")))
sketch5.addConstraint(Sketcher.Constraint("DistanceY", 0, 2, 0, 1, Q("0.0625 in")))
sketch5.setExpression("Constraints[9]", "Params.sketch5_width")
sketch5.setExpression("Constraints[10]", "Params.sketch5_height")
pad3 = body.newObject("PartDesign::Pad", "Pad002")
pad3.Profile = sketch5
pad3.setExpression("Length", "Params.pad3_length")
pad3.Reversed = True

doc.recompute()
